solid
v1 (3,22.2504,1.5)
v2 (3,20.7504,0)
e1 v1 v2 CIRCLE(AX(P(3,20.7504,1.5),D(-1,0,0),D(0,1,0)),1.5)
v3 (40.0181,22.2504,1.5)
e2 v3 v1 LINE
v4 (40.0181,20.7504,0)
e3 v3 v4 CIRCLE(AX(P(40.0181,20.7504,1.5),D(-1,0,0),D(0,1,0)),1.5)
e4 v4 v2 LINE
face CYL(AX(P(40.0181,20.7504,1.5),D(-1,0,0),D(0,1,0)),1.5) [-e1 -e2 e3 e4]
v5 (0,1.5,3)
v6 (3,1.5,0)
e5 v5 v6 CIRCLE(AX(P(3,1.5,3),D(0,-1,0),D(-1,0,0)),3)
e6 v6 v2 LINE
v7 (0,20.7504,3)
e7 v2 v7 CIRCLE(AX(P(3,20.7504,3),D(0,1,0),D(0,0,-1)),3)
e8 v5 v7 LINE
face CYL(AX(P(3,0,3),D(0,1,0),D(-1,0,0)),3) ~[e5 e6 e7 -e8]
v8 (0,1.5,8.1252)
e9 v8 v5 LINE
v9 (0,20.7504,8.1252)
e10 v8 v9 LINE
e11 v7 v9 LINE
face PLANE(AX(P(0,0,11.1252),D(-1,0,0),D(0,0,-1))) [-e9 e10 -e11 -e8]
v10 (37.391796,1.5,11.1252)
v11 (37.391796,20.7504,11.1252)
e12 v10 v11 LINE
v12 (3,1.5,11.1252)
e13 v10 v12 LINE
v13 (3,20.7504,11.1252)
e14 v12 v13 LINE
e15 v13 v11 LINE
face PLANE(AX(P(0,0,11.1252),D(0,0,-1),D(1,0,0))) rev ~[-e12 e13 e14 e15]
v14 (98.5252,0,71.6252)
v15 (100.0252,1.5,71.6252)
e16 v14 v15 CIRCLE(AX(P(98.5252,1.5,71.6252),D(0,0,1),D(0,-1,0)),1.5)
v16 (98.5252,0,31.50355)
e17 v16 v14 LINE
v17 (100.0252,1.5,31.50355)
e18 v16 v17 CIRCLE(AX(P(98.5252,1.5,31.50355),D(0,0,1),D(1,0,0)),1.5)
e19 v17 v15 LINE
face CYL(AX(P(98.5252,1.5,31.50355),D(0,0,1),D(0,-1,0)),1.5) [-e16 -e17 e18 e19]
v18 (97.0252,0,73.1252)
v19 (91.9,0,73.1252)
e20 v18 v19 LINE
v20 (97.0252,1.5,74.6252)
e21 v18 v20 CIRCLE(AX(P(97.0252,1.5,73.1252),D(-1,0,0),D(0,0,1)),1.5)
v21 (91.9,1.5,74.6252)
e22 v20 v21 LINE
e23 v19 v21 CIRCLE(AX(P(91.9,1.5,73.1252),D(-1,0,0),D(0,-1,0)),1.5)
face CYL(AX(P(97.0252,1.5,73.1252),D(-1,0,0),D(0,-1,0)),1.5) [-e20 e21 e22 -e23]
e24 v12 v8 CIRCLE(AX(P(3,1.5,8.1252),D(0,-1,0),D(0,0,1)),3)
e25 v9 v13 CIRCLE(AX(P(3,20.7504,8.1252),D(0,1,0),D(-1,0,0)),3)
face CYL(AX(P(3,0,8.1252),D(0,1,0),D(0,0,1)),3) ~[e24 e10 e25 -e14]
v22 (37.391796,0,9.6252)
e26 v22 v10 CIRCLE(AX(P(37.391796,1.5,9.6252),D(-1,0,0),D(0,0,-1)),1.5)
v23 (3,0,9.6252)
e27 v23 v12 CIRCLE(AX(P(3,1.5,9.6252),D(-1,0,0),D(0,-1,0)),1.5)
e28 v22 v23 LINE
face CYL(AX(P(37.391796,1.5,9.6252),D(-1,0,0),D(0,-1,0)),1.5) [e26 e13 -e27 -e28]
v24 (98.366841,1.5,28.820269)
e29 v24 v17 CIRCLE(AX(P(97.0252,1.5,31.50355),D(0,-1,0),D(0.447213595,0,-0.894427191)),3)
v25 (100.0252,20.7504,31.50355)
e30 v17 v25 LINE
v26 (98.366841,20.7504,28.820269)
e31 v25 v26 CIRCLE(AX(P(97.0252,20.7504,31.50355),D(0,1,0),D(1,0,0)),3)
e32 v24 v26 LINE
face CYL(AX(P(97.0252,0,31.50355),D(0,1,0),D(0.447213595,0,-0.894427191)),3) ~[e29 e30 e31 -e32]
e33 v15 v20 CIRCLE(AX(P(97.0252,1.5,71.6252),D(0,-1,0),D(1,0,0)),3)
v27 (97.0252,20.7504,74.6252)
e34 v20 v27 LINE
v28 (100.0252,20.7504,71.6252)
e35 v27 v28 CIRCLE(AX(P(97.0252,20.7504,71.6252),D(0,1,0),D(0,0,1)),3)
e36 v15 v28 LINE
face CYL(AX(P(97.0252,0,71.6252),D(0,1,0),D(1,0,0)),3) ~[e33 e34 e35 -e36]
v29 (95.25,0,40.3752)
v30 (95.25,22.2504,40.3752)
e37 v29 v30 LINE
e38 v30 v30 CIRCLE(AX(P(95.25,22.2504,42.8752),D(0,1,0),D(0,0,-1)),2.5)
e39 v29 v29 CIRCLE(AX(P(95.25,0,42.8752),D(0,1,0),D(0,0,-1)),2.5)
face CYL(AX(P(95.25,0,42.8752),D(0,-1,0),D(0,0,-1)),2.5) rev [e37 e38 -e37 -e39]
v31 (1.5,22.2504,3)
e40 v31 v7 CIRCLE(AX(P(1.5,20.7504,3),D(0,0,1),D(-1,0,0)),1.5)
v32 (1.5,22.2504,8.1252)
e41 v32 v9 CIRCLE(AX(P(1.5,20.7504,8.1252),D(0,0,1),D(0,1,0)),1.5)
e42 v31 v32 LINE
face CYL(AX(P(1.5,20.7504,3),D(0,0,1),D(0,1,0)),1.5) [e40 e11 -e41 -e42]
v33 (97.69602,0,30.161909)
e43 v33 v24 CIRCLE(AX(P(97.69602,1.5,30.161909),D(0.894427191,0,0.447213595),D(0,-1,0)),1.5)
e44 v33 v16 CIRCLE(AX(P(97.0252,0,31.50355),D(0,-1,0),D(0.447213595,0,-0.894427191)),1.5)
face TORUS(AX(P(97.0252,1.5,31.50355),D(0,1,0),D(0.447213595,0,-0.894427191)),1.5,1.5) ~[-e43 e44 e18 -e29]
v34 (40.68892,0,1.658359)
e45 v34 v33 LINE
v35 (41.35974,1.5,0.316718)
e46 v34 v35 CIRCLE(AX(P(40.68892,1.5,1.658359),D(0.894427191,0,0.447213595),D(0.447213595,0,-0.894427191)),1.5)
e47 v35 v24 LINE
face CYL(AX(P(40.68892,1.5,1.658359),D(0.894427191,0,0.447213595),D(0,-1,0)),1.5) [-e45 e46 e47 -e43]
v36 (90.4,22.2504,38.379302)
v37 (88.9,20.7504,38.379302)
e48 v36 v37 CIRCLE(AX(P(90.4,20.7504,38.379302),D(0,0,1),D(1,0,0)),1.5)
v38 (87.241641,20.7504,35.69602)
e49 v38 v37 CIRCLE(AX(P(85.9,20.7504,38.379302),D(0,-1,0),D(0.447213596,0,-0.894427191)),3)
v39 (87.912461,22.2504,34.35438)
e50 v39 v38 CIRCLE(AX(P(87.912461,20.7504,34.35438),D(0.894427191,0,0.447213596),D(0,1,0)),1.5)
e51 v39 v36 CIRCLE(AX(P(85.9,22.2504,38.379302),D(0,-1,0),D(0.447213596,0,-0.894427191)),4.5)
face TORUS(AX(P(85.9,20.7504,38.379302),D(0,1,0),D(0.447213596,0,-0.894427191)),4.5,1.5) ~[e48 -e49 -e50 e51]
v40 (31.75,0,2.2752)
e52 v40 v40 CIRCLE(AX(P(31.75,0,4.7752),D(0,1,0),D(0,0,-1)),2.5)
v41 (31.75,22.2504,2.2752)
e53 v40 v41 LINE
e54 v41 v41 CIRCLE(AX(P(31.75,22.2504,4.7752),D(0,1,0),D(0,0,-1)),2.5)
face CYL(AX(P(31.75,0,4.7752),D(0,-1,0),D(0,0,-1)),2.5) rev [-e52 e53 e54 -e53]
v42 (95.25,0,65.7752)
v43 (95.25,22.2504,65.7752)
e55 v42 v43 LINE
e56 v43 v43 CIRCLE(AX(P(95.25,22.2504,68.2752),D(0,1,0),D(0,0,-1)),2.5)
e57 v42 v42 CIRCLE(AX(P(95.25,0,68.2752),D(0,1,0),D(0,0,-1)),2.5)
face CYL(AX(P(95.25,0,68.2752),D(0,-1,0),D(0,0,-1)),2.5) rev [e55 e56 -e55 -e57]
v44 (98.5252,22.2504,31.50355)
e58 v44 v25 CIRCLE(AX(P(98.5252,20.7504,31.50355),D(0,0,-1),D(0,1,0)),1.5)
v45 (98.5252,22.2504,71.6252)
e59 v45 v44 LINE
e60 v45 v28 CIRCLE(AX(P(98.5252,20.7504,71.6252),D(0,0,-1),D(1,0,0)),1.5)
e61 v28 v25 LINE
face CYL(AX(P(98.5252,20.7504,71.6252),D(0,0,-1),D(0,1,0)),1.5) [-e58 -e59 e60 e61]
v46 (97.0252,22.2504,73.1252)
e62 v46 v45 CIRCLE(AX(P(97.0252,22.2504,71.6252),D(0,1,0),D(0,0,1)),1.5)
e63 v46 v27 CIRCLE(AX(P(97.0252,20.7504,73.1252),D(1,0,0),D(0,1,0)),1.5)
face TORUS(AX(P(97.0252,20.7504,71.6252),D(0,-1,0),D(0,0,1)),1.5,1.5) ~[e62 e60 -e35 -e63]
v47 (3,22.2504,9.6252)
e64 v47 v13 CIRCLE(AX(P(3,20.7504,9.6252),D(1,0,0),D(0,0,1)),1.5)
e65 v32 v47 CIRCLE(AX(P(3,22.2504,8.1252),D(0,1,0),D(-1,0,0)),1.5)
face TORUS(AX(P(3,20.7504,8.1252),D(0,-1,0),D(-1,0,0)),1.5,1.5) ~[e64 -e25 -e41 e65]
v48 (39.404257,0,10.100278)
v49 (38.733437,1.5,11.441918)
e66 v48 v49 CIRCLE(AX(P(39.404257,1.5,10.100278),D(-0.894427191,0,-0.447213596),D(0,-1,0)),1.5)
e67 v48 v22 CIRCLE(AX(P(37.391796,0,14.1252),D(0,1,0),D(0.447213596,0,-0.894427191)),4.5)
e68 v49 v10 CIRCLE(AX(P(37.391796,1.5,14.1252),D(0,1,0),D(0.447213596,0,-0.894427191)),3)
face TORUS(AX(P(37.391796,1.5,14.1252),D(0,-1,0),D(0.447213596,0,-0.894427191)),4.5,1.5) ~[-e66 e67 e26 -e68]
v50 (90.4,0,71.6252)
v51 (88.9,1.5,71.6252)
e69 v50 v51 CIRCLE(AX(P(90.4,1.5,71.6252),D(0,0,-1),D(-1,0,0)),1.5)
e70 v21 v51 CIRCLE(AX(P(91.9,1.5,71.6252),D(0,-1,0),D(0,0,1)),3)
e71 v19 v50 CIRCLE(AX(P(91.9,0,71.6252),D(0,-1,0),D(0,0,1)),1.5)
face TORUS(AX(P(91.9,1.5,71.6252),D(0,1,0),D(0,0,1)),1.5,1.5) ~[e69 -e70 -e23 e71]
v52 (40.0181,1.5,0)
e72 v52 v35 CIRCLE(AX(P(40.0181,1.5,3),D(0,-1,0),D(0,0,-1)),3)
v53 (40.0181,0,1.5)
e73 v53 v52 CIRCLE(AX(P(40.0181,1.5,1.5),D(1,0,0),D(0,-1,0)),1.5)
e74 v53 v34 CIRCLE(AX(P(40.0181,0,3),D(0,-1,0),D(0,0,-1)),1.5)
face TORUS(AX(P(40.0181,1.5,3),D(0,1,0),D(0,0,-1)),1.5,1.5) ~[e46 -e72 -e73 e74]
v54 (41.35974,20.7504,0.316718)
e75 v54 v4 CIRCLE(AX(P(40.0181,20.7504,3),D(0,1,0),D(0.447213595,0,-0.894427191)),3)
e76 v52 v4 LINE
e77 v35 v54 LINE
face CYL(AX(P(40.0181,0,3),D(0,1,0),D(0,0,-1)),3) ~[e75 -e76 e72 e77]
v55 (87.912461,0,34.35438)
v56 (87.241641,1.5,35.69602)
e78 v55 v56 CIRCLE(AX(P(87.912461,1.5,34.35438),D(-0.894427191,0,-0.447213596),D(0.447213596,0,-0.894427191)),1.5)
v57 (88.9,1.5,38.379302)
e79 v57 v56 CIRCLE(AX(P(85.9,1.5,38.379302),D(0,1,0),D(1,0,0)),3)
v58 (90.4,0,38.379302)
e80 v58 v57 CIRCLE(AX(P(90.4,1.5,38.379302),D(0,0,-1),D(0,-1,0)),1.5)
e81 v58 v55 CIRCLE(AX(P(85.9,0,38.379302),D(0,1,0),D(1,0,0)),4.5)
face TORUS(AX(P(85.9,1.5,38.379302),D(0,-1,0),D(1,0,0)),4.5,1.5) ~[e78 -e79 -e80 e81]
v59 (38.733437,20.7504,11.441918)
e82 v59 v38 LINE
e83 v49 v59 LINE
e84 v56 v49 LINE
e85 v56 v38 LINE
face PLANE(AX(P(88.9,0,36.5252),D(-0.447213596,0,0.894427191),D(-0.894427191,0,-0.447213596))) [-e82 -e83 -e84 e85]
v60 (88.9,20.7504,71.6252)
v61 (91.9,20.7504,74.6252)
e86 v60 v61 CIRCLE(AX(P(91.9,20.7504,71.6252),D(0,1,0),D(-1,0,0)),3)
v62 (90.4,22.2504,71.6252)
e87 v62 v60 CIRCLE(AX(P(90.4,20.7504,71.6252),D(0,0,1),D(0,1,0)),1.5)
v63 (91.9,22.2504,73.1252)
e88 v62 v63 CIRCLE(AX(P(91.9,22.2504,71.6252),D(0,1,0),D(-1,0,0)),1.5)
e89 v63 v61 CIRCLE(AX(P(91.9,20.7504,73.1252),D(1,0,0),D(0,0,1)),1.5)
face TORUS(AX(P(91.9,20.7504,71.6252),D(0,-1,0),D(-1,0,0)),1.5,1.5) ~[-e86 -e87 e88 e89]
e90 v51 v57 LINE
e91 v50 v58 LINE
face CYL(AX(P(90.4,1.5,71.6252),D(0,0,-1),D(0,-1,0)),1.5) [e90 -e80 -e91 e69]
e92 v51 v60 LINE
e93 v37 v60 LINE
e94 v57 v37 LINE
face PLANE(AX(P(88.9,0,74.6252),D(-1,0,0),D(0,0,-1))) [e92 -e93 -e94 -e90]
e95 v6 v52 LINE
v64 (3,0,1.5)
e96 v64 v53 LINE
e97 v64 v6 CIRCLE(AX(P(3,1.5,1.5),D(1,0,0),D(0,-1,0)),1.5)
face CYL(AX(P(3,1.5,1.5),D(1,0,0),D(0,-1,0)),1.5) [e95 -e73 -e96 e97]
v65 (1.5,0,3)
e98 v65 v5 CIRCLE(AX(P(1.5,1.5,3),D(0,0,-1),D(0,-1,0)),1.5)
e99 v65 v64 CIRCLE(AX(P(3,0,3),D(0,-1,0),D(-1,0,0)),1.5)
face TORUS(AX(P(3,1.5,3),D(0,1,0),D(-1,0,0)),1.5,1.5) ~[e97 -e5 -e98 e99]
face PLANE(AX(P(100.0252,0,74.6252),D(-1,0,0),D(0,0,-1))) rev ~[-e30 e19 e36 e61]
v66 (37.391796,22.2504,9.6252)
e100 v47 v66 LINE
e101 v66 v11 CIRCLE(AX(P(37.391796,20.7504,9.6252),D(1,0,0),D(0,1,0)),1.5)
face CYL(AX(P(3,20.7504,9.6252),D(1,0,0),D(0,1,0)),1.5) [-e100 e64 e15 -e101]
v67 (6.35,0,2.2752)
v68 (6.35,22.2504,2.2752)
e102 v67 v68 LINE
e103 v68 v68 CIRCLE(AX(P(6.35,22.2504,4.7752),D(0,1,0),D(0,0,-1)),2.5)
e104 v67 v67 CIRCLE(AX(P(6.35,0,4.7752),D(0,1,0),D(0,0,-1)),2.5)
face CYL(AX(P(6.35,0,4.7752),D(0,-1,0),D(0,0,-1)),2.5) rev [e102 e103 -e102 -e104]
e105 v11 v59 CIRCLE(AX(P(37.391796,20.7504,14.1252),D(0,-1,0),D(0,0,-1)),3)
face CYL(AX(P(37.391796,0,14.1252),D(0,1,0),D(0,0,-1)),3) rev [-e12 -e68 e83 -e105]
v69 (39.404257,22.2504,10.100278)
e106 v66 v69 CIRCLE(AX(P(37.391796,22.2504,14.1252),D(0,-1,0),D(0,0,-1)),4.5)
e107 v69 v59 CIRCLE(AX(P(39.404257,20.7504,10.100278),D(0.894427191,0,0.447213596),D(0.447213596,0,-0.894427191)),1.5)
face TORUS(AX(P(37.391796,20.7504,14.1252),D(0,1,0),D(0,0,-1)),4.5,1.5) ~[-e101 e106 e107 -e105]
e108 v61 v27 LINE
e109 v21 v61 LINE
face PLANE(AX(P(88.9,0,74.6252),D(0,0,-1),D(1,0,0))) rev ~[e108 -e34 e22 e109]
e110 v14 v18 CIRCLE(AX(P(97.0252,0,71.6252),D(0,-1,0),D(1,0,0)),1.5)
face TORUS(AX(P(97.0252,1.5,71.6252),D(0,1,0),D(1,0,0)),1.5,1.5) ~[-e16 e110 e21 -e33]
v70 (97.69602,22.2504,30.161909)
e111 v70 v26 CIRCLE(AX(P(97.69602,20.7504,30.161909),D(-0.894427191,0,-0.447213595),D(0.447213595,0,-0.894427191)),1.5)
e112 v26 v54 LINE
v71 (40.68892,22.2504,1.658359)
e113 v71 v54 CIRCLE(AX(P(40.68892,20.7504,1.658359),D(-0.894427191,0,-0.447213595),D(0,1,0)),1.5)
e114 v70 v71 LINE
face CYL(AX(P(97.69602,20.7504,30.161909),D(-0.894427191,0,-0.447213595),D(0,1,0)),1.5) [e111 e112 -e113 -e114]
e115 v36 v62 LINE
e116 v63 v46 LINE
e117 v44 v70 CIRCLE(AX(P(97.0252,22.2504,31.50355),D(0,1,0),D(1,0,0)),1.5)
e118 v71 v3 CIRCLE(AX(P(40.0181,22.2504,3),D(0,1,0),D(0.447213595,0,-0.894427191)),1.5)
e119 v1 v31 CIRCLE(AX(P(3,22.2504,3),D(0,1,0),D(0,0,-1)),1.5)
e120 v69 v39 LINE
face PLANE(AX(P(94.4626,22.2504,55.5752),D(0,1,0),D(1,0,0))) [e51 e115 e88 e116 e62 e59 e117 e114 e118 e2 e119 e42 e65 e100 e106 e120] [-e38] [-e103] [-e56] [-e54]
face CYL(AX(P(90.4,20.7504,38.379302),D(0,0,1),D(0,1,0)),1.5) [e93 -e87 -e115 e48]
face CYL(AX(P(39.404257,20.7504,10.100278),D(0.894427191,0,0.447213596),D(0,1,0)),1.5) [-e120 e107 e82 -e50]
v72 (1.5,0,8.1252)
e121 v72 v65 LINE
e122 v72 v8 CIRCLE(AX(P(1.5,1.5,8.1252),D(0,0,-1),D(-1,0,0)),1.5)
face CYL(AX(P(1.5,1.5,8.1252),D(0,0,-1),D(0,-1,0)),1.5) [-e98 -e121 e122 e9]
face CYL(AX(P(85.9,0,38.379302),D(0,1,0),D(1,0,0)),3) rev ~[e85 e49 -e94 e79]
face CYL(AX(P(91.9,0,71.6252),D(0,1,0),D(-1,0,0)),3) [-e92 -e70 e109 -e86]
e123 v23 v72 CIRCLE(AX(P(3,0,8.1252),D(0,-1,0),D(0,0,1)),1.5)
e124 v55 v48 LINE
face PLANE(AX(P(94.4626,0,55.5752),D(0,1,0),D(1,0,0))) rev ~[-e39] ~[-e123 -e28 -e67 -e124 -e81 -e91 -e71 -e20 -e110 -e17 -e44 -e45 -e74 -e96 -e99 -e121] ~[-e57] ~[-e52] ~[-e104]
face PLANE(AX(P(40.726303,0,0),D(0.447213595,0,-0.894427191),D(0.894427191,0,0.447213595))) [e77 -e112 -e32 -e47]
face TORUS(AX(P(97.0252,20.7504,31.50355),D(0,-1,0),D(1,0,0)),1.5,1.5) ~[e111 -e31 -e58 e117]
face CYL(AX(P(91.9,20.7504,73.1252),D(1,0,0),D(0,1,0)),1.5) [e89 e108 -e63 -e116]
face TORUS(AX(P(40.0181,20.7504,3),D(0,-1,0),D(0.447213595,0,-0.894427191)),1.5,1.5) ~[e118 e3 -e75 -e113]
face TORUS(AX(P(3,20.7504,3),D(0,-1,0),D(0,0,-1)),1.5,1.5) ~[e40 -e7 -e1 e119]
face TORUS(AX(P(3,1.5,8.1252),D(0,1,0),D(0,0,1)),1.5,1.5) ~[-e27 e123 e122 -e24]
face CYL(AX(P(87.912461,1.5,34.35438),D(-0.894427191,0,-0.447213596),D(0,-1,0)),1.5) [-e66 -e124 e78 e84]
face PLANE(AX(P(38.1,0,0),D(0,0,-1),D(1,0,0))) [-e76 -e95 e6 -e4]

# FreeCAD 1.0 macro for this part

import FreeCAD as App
import Part
import Sketcher

V = App.Vector
Q = App.Units.Quantity


def edges_at(feature, points):
    """Names of the edges that pass closest to the given points."""
    edges = feature.Shape.Edges
    near = lambda p: min(range(len(edges)), key=lambda i: edges[i].distToShape(Part.Vertex(*p))[0])
    return sorted({f"Edge{near(p) + 1}" for p in points})


def add_polygon(sketch, points):
    """Adds a closed chain of lines whose ends are joined by coincident constraints."""
    first, n = sketch.GeometryCount, len(points)
    for a, b in zip(points, points[1:] + points[:1]):
        sketch.addGeometry(Part.LineSegment(App.Vector(*a, 0), App.Vector(*b, 0)), False)
    for i in range(n):
        sketch.addConstraint(Sketcher.Constraint("Coincident", first + i, 2, first + (i + 1) % n, 1))

doc = App.newDocument("Part")
body = doc.addObject("PartDesign::Body", "Body")

# Sketch on XZ plane
sketch1 = doc.addObject("Sketcher::SketchObject", "Sketch")
body.addObject(sketch1)
sketch1.AttachmentSupport = (doc.XZ_Plane, [""])
sketch1.MapMode = "FlatFace"
add_polygon(sketch1, [(0, 0), (0, 11.1252), (38.1, 11.1252), (88.9, 36.5252), (88.9, 74.6252), (100.0252, 74.6252), (100.0252, 29.649448), (40.726303, 0)])  # lines 0-7
sketch1.addGeometry(Part.Circle(V(6.35, 4.7752, 0), V(0, 0, 1), 2.5), False)  # 8
sketch1.addGeometry(Part.Circle(V(31.75, 4.7752, 0), V(0, 0, 1), 2.5), False)  # 9
sketch1.addGeometry(Part.Circle(V(95.25, 42.8752, 0), V(0, 0, 1), 2.5), False)  # 10
sketch1.addGeometry(Part.Circle(V(95.25, 68.2752, 0), V(0, 0, 1), 2.5), False)  # 11
sketch1.addConstraint([
    Sketcher.Constraint("Vertical", 0),
    Sketcher.Constraint("Horizontal", 1),
    Sketcher.Constraint("Vertical", 3),
    Sketcher.Constraint("Horizontal", 4),
    Sketcher.Constraint("Vertical", 5),
    Sketcher.Constraint("Horizontal", 7),
    Sketcher.Constraint("Coincident", 7, 2, -1, 1),
    Sketcher.Constraint("Equal", 8, 9),
    Sketcher.Constraint("Equal", 9, 10),
    Sketcher.Constraint("Equal", 10, 11),
    Sketcher.Constraint("Parallel", 2, 6),
    Sketcher.Constraint("Horizontal", 8, 3, 9, 3),
    Sketcher.Constraint("Vertical", 10, 3, 11, 3),
    Sketcher.Constraint("Equal", 4, 0),
    Sketcher.Constraint("Equal", 1, 3),
    Sketcher.Constraint("Diameter", 8, Q("5 mm")),
    Sketcher.Constraint("DistanceX", 1, 1, 1, 2, Q("38.1 mm")),
    Sketcher.Constraint("DistanceX", -1, 1, 2, 2, Q("88.9 mm")),
    Sketcher.Constraint("DistanceX", 8, 3, 9, 3, Q("25.4 mm")),
    Sketcher.Constraint("DistanceX", 9, 3, 10, 3, Q("63.5 mm")),
    Sketcher.Constraint("DistanceY", 9, 3, 10, 3, Q("38.1 mm")),
    Sketcher.Constraint("DistanceY", 10, 3, 11, 3, Q("25.4 mm")),
    Sketcher.Constraint("DistanceY", 1, 2, 2, 2, Q("25.4 mm")),
    Sketcher.Constraint("DistanceX", -1, 1, 8, 3, Q("6.35 mm")),
    Sketcher.Constraint("DistanceY", 8, 3, 0, 2, Q("6.35 mm")),
    Sketcher.Constraint("DistanceX", 4, 1, 4, 2, Q("11.1252 mm")),
    Sketcher.Constraint("DistanceY", 5, 2, 5, 1, Q("44.975752 mm")),
])
pad1 = doc.addObject("PartDesign::Pad", "Pad")
body.addObject(pad1)
pad1.Profile = sketch1
pad1.Length = 22.2504
pad1.Reversed = True
doc.recompute()

fillet = doc.addObject("PartDesign::Fillet", "Fillet")
body.addObject(fillet)
fillet.Base = (pad1, edges_at(pad1, [
    (0, 11.125, 11.125),
    (0, 11.125, 0),
    (40.726, 11.125, 0),
    (100.025, 11.125, 29.649),
    (100.025, 11.125, 74.625),
    (88.9, 11.125, 74.625),
    (88.9, 11.125, 36.525),
    (38.1, 11.125, 11.125),
]))
fillet.Radius = 3
doc.recompute()

fillet2 = doc.addObject("PartDesign::Fillet", "Fillet001")
body.addObject(fillet2)
fillet2.Base = (fillet, edges_at(fillet, [
    (21.509, 0, 0),
    (21.509, 22.25, 0),
    (20.196, 0, 11.125),
    (0, 0, 5.563),
    (69.863, 0, 14.568),
    (100.025, 0, 51.564),
    (94.463, 0, 74.625),
    (88.9, 0, 55.002),
    (62.988, 0, 23.569),
    (0.879, 0, 0.879),
    (0.879, 0, 10.247),
    (89.779, 0, 73.747),
    (99.147, 0, 73.747),
    (99.577, 0, 29.926),
    (40.707, 0, 0.08),
    (69.863, 22.25, 14.568),
    (20.196, 22.25, 11.125),
    (62.988, 22.25, 23.569),
    (88.9, 22.25, 55.002),
    (94.463, 22.25, 74.625),
    (100.025, 22.25, 51.564),
    (0, 22.25, 5.563),
    (0.879, 22.25, 0.879),
    (0.879, 22.25, 10.247),
    (89.779, 22.25, 73.747),
    (99.147, 22.25, 73.747),
    (99.577, 22.25, 29.926),
    (40.707, 22.25, 0.08),
    (38.081, 0, 11.205),
    (38.081, 22.25, 11.205),
    (88.452, 0, 36.802),
    (88.452, 22.25, 36.802),
]))
fillet2.Radius = 1.5

doc.recompute()
